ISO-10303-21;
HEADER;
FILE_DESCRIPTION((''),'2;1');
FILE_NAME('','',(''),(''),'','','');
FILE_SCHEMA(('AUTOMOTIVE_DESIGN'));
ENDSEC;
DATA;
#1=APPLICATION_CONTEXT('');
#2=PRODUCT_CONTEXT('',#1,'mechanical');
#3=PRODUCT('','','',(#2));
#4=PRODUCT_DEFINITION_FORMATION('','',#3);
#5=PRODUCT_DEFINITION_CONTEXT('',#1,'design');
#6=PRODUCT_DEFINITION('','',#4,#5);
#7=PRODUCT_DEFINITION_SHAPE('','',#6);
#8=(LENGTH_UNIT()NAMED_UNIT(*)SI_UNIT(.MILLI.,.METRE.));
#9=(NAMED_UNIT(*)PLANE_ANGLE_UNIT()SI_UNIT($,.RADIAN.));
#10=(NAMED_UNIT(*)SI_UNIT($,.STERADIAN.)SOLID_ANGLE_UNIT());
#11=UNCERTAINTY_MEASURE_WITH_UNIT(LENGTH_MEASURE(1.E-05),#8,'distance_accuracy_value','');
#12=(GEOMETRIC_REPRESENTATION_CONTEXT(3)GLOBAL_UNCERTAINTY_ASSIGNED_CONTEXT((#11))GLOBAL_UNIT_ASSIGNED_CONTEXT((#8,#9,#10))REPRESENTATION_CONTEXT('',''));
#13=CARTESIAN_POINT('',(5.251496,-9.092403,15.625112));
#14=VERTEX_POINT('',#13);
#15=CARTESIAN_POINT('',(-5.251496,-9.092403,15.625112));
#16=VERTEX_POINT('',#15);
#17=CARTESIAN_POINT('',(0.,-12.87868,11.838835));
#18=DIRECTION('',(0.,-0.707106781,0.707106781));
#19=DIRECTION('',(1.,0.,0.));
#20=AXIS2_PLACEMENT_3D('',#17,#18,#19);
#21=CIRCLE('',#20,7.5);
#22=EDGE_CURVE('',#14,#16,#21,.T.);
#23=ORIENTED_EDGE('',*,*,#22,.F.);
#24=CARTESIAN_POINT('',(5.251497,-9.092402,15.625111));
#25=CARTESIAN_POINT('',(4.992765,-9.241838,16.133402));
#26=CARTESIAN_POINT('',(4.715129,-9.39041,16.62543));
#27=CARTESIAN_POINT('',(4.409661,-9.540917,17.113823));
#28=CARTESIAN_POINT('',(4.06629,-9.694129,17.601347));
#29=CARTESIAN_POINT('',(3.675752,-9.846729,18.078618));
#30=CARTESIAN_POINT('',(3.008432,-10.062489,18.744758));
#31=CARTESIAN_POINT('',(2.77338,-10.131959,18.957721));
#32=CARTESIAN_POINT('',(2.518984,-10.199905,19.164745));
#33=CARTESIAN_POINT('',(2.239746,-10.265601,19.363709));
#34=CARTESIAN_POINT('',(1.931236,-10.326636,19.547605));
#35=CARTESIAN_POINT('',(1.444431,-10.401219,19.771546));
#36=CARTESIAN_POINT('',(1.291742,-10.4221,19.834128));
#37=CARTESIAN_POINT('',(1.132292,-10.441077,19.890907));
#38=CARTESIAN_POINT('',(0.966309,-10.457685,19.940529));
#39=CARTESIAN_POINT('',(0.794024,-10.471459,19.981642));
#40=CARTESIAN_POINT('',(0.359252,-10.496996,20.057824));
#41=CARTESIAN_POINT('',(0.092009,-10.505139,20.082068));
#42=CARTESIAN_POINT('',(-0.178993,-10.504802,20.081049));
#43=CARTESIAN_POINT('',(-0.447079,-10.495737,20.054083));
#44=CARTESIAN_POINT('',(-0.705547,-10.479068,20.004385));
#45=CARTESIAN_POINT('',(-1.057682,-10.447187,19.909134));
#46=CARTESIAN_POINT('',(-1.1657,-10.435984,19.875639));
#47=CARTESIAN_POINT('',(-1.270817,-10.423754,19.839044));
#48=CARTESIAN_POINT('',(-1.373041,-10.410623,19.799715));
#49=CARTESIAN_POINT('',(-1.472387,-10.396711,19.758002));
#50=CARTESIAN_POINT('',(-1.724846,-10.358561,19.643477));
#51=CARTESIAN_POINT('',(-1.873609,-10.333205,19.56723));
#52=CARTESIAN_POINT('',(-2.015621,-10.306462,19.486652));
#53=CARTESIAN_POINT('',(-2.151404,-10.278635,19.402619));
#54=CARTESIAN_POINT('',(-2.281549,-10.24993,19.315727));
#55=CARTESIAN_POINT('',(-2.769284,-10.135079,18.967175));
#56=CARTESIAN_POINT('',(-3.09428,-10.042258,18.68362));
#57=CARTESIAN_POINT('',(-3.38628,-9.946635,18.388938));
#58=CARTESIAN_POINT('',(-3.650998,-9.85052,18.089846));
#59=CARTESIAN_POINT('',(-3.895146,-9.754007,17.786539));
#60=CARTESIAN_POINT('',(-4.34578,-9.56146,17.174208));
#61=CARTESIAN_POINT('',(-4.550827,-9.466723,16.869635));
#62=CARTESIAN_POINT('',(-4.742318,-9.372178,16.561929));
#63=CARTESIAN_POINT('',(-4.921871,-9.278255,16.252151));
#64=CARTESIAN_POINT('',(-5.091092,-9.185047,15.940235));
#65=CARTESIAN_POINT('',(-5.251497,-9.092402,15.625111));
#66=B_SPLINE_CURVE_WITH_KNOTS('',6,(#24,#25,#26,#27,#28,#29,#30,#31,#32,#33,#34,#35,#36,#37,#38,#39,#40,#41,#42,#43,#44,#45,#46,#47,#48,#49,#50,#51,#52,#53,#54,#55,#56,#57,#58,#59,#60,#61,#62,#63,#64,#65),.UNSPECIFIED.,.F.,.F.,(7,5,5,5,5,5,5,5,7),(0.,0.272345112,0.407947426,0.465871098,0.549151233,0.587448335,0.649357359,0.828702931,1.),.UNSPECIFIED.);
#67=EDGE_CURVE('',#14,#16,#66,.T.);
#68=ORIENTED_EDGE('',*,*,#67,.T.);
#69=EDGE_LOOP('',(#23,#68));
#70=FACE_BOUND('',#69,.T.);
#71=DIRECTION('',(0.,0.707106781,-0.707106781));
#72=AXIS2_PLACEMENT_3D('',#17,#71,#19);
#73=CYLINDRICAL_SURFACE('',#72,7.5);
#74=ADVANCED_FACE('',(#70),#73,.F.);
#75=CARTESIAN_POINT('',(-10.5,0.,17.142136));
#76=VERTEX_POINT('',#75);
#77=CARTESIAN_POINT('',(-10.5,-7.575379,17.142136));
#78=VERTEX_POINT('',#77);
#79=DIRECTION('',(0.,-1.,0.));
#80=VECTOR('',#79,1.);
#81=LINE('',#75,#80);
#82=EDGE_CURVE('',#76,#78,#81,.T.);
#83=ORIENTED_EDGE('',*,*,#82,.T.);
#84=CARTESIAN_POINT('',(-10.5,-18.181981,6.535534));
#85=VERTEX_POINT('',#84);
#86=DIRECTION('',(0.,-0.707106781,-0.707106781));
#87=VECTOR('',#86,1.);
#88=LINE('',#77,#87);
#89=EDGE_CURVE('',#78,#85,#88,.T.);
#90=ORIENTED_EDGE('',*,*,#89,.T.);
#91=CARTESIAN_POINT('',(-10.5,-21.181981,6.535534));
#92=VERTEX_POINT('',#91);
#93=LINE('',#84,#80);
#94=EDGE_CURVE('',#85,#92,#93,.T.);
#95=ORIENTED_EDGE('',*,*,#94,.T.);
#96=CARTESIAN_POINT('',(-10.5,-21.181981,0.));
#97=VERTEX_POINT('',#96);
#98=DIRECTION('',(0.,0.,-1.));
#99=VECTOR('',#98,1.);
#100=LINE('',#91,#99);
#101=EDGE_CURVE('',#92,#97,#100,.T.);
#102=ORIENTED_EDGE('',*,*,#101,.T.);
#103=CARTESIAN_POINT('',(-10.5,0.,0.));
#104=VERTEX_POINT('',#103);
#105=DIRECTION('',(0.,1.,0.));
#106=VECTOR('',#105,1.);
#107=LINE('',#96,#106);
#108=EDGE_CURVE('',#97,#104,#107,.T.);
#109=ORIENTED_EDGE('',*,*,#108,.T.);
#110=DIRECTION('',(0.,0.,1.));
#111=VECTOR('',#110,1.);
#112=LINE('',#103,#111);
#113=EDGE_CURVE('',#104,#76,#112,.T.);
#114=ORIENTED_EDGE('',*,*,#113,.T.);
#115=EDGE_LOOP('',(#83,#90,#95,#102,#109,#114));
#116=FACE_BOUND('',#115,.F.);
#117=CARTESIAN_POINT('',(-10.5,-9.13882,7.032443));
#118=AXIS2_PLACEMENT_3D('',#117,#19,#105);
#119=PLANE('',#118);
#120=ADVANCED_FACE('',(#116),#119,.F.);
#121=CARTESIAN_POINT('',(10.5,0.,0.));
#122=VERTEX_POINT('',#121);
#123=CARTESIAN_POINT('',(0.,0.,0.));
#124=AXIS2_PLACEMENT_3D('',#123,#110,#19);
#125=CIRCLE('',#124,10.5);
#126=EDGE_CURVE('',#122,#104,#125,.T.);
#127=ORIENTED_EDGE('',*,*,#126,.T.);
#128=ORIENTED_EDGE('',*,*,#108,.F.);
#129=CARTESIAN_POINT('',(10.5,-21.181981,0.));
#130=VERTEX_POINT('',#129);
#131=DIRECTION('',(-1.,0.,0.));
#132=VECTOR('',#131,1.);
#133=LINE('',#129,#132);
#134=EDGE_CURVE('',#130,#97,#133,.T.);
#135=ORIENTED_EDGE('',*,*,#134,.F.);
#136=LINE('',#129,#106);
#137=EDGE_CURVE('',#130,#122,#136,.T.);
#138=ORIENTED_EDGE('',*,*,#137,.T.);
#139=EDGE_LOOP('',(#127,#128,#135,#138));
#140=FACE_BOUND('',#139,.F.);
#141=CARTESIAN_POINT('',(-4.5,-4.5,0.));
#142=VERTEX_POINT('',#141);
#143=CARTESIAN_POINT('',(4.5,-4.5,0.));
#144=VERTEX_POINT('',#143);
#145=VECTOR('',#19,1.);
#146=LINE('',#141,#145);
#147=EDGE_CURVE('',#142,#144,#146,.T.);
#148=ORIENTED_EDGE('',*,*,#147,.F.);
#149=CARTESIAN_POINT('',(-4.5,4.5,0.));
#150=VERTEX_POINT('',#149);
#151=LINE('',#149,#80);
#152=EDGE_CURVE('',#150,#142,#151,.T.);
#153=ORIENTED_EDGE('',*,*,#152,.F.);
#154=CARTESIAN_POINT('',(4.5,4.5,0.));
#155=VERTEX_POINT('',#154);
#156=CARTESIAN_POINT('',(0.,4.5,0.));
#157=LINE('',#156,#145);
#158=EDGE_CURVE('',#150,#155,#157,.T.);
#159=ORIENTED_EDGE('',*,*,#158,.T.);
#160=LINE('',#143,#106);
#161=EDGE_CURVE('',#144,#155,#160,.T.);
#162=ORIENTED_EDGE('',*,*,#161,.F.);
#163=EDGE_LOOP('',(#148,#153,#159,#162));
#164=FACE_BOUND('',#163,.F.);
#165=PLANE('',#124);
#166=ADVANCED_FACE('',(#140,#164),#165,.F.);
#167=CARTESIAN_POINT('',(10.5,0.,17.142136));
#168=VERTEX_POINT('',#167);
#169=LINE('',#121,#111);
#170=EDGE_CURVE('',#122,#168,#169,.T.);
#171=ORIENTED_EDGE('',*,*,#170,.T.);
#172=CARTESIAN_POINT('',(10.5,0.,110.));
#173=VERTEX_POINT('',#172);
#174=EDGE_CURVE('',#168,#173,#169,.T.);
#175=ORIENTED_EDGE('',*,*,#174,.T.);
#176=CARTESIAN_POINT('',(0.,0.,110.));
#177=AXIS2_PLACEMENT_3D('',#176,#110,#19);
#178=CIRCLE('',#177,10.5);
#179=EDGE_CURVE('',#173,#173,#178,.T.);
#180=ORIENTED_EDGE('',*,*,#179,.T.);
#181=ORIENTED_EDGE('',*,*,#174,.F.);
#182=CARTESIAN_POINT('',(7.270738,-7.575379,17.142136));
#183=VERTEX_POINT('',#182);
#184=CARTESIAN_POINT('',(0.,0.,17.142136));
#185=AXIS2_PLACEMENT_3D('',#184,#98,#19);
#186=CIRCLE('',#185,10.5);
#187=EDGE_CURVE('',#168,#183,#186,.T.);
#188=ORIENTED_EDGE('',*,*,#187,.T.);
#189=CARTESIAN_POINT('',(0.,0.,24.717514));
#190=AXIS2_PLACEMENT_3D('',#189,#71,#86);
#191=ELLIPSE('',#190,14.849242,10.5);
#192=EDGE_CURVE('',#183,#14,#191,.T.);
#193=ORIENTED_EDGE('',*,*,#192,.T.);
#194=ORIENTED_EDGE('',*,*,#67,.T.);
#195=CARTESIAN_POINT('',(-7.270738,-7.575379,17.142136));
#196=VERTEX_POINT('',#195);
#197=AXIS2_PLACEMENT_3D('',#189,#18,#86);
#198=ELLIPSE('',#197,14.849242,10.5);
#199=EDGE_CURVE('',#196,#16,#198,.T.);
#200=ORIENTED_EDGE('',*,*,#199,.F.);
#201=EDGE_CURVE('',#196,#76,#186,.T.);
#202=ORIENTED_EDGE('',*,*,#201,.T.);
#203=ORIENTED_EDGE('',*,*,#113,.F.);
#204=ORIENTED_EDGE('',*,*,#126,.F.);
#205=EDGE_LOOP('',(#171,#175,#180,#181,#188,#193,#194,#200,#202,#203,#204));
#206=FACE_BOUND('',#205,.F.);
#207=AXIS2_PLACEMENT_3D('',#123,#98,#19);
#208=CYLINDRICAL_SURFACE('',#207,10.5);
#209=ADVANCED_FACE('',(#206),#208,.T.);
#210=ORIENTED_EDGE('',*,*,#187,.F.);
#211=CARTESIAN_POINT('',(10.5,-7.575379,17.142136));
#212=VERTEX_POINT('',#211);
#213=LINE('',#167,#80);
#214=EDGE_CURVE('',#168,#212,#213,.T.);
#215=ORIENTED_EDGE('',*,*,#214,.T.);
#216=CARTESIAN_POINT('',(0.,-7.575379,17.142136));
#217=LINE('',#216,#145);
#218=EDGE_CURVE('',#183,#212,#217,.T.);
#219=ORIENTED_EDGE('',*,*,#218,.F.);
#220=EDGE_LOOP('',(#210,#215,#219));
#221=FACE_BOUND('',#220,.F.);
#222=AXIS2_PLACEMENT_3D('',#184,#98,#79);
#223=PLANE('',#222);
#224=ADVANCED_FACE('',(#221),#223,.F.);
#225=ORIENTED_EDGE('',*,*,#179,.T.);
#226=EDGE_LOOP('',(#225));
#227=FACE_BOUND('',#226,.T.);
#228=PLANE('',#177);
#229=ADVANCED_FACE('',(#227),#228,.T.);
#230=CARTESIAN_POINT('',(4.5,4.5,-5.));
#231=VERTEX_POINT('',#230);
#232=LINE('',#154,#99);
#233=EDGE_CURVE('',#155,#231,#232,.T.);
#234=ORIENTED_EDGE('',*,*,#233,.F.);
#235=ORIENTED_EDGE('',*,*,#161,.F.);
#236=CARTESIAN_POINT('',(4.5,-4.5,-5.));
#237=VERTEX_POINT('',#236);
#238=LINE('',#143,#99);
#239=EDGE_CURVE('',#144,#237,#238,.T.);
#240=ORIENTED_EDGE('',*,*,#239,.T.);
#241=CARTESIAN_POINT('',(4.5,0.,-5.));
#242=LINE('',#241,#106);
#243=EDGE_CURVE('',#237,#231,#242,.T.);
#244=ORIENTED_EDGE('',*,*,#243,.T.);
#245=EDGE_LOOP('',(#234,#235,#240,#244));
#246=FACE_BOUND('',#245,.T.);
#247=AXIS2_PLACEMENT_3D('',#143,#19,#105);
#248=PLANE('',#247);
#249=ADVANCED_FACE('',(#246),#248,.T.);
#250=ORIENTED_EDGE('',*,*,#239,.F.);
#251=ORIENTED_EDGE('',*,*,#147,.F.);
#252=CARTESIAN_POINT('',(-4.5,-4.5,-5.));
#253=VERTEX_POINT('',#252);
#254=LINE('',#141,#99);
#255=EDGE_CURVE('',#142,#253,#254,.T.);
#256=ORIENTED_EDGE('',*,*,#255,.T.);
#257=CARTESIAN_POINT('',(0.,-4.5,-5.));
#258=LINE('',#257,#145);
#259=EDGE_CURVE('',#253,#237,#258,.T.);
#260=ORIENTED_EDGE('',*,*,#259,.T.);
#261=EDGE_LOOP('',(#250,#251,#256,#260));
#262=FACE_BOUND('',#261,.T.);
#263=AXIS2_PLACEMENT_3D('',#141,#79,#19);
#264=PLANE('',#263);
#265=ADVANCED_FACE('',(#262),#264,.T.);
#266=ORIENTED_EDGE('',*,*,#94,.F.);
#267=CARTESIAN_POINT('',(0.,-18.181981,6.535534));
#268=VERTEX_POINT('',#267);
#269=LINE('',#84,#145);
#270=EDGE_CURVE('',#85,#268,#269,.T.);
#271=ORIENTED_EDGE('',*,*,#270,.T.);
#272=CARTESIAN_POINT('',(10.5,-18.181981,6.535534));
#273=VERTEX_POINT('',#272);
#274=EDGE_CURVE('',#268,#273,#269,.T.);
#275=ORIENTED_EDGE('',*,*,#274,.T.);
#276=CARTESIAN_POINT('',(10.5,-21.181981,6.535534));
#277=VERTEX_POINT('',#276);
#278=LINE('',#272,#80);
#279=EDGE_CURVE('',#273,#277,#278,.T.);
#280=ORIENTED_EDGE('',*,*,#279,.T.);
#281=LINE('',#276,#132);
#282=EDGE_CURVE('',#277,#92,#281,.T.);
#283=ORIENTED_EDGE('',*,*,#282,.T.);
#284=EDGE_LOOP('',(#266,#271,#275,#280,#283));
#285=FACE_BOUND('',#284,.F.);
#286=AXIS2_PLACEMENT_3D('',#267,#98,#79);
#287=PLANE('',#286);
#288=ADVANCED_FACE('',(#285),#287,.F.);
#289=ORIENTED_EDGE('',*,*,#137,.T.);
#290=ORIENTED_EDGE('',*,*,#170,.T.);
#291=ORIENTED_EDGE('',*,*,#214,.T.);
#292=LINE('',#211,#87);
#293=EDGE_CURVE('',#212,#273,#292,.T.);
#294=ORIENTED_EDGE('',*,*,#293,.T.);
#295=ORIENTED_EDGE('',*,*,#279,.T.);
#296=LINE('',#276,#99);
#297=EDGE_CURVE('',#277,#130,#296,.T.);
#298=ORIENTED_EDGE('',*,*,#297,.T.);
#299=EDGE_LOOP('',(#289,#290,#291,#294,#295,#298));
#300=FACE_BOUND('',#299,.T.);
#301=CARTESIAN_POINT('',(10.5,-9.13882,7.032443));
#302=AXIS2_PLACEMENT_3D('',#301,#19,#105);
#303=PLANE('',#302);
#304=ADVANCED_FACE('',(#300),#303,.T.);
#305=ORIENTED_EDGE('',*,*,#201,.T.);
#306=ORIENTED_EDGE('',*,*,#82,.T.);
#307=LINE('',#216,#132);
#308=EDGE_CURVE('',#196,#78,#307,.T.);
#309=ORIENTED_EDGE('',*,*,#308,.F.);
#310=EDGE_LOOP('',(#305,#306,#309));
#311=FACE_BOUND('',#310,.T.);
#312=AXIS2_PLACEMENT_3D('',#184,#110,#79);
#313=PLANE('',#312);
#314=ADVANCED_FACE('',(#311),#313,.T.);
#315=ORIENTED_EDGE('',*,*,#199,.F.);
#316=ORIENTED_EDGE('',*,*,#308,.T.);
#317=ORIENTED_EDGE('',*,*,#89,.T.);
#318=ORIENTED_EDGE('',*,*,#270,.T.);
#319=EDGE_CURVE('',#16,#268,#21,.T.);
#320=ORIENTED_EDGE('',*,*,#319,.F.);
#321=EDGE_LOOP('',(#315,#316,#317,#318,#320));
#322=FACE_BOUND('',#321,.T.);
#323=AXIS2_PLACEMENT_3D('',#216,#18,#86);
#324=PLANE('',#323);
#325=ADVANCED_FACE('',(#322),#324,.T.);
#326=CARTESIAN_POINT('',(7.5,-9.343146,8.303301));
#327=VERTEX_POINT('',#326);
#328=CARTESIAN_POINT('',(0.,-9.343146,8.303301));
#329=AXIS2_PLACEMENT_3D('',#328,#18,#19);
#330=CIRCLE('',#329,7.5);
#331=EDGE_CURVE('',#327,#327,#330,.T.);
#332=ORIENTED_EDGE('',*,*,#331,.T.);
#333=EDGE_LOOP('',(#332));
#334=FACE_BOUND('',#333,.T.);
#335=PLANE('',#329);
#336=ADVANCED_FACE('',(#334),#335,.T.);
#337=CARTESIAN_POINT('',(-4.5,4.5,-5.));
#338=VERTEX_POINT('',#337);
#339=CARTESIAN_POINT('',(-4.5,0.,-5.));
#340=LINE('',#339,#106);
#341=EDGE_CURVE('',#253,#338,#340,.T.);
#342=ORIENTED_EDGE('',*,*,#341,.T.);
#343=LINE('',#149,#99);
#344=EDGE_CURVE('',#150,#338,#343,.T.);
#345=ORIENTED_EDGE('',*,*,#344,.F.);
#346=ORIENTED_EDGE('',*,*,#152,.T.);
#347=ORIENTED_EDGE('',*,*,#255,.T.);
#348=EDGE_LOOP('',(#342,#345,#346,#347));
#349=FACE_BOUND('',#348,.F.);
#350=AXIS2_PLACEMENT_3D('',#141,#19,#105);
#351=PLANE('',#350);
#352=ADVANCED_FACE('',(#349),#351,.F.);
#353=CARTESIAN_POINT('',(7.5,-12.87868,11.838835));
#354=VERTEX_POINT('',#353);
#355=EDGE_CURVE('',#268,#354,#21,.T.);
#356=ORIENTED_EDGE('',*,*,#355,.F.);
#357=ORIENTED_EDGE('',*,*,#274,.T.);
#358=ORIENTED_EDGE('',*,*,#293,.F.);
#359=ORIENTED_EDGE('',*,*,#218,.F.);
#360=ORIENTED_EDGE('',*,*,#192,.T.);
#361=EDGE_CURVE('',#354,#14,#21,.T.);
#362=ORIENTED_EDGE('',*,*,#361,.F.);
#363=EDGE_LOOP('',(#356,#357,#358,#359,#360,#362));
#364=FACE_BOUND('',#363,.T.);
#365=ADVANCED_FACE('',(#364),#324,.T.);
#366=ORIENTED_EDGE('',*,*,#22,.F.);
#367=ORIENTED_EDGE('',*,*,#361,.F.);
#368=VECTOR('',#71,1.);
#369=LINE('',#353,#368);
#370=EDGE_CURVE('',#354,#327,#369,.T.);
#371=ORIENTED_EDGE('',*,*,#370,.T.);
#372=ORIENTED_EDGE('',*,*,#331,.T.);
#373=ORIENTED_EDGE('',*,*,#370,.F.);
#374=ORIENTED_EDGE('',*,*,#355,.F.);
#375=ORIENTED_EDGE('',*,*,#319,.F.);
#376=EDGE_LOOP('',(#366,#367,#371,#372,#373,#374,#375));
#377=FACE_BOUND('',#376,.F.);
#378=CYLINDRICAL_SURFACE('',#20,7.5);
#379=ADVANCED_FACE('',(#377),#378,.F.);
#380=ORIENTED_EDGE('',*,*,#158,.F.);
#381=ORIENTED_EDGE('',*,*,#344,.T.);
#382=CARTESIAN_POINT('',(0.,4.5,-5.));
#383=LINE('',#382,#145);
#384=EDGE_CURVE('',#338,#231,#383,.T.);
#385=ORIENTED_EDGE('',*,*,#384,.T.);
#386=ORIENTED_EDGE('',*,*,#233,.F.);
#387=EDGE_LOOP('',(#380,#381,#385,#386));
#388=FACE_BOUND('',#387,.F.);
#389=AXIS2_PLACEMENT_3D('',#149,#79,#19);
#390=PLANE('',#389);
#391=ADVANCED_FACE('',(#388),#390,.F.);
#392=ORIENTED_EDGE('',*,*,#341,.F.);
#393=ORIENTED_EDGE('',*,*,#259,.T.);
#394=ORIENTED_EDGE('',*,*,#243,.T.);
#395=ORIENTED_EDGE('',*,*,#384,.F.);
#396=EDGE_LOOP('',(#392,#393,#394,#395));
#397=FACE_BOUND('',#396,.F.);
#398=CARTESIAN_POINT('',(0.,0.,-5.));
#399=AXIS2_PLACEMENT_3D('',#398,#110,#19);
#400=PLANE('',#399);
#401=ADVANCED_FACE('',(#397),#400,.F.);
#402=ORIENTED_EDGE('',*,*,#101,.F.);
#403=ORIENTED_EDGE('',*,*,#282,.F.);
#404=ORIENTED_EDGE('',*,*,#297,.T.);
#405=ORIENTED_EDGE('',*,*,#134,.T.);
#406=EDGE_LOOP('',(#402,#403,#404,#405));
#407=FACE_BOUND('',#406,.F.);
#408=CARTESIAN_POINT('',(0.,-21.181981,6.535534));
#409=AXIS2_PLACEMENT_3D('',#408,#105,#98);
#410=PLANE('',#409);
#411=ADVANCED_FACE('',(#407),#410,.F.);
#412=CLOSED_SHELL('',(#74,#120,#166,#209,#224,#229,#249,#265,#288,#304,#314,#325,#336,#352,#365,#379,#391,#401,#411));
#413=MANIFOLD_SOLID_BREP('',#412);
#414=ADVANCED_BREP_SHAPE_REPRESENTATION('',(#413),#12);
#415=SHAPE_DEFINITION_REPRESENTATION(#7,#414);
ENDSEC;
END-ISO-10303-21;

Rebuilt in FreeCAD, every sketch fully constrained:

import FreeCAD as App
import Part
import Sketcher

V = App.Vector
Q = App.Units.Quantity

doc = App.newDocument("Part")
body = doc.addObject("PartDesign::Body", "Body")

# Sketch on XY plane
sketch1 = doc.addObject("Sketcher::SketchObject", "Sketch")
body.addObject(sketch1)
sketch1.AttachmentSupport = (doc.XY_Plane, [""])
sketch1.MapMode = "FlatFace"
sketch1.addGeometry(Part.Circle(V(0, 0, 0), V(0, 0, 1), 10.5), False)
sketch1.addConstraint(Sketcher.Constraint("Coincident", 0, 3, -1, 1))
sketch1.addConstraint(Sketcher.Constraint("Diameter", 0, Q("21 mm")))
pad1 = doc.addObject("PartDesign::Pad", "Pad")
body.addObject(pad1)
pad1.Profile = sketch1
pad1.Length = 110

# Sketch on XY plane
sketch2 = doc.addObject("Sketcher::SketchObject", "Sketch001")
body.addObject(sketch2)
sketch2.AttachmentSupport = (doc.XY_Plane, [""])
sketch2.MapMode = "FlatFace"
sketch2.addGeometry(Part.LineSegment(V(-4.5, 4.5, 0), V(-4.5, -4.5, 0)), False)
sketch2.addGeometry(Part.LineSegment(V(-4.5, -4.5, 0), V(4.5, -4.5, 0)), False)
sketch2.addGeometry(Part.LineSegment(V(4.5, -4.5, 0), V(4.5, 4.5, 0)), False)
sketch2.addGeometry(Part.LineSegment(V(4.5, 4.5, 0), V(-4.5, 4.5, 0)), False)
sketch2.addConstraint(Sketcher.Constraint("Coincident", 0, 2, 1, 1))
sketch2.addConstraint(Sketcher.Constraint("Coincident", 1, 2, 2, 1))
sketch2.addConstraint(Sketcher.Constraint("Coincident", 2, 2, 3, 1))
sketch2.addConstraint(Sketcher.Constraint("Coincident", 3, 2, 0, 1))
sketch2.addConstraint(Sketcher.Constraint("Vertical", 0))
sketch2.addConstraint(Sketcher.Constraint("Horizontal", 1))
sketch2.addConstraint(Sketcher.Constraint("Vertical", 2))
sketch2.addConstraint(Sketcher.Constraint("Horizontal", 3))
sketch2.addConstraint(Sketcher.Constraint("Symmetric", 0, 2, 2, 2, -1, 1))
sketch2.addConstraint(Sketcher.Constraint("Equal", 3, 0))
sketch2.addConstraint(Sketcher.Constraint("DistanceX", 1, 1, 1, 2, Q("9 mm")))
pad2 = doc.addObject("PartDesign::Pad", "Pad001")
body.addObject(pad2)
pad2.Profile = sketch2
pad2.Length = 5
pad2.Reversed = True

# Sketch on YZ plane
sketch3 = doc.addObject("Sketcher::SketchObject", "Sketch002")
body.addObject(sketch3)
sketch3.AttachmentSupport = (doc.YZ_Plane, [""])
sketch3.MapMode = "FlatFace"
sketch3.addGeometry(Part.LineSegment(V(0, 0, 0), V(0, 17.142136, 0)), False)
sketch3.addGeometry(Part.LineSegment(V(0, 17.142136, 0), V(-7.575379, 17.142136, 0)), False)
sketch3.addGeometry(Part.LineSegment(V(-7.575379, 17.142136, 0), V(-18.181981, 6.535534, 0)), False)
sketch3.addGeometry(Part.LineSegment(V(-18.181981, 6.535534, 0), V(-21.181981, 6.535534, 0)), False)
sketch3.addGeometry(Part.LineSegment(V(-21.181981, 6.535534, 0), V(-21.181981, 0, 0)), False)
sketch3.addGeometry(Part.LineSegment(V(-21.181981, 0, 0), V(0, 0, 0)), False)
sketch3.addConstraint(Sketcher.Constraint("Coincident", 0, 2, 1, 1))
sketch3.addConstraint(Sketcher.Constraint("Coincident", 1, 2, 2, 1))
sketch3.addConstraint(Sketcher.Constraint("Coincident", 2, 2, 3, 1))
sketch3.addConstraint(Sketcher.Constraint("Coincident", 3, 2, 4, 1))
sketch3.addConstraint(Sketcher.Constraint("Coincident", 4, 2, 5, 1))
sketch3.addConstraint(Sketcher.Constraint("Coincident", 5, 2, 0, 1))
sketch3.addConstraint(Sketcher.Constraint("Vertical", 0))
sketch3.addConstraint(Sketcher.Constraint("Horizontal", 1))
sketch3.addConstraint(Sketcher.Constraint("Horizontal", 3))
sketch3.addConstraint(Sketcher.Constraint("Vertical", 4))
sketch3.addConstraint(Sketcher.Constraint("Horizontal", 5))
sketch3.addConstraint(Sketcher.Constraint("Coincident", 5, 2, -1, 1))
sketch3.addConstraint(Sketcher.Constraint("DistanceX", 3, 2, 3, 1, Q("3 mm")))
sketch3.addConstraint(Sketcher.Constraint("Angle", 2, Q("-135 deg")))
sketch3.addConstraint(Sketcher.Constraint("Distance", 2, Q("15 mm")))
sketch3.addConstraint(Sketcher.Constraint("DistanceX", 1, 2, 1, 1, Q("7.575379 mm")))
sketch3.addConstraint(Sketcher.Constraint("DistanceY", 0, 1, 0, 2, Q("17.142136 mm")))
pad3 = doc.addObject("PartDesign::Pad", "Pad002")
body.addObject(pad3)
pad3.Profile = sketch3
pad3.Type = "TwoLengths"
pad3.Length = 10.5
pad3.Length2 = 10.5

# Sketch on an angled plane
sketch4 = doc.addObject("Sketcher::SketchObject", "Sketch003")
body.addObject(sketch4)
sketch4.Placement = App.Placement(V(0, -12.358757, 12.358757), App.Rotation(V(1, 0, 0), V(0, 0.707106781, 0.707106781), V(0, -0.707106781, 0.707106781), "ZXY"))
sketch4.addGeometry(Part.Circle(V(0, -0.735281, 0), V(0, 0, 1), 7.5), False)
sketch4.addConstraint(Sketcher.Constraint("PointOnObject", 0, 3, -2))
sketch4.addConstraint(Sketcher.Constraint("Diameter", 0, Q("15 mm")))
sketch4.addConstraint(Sketcher.Constraint("DistanceY", 0, 3, -1, 1, Q("0.735281 mm")))
pocket1 = doc.addObject("PartDesign::Pocket", "Pocket")
body.addObject(pocket1)
pocket1.Profile = sketch4
pocket1.Type = "TwoLengths"
pocket1.Length = 5
pocket1.Length2 = 25

doc.recompute()
